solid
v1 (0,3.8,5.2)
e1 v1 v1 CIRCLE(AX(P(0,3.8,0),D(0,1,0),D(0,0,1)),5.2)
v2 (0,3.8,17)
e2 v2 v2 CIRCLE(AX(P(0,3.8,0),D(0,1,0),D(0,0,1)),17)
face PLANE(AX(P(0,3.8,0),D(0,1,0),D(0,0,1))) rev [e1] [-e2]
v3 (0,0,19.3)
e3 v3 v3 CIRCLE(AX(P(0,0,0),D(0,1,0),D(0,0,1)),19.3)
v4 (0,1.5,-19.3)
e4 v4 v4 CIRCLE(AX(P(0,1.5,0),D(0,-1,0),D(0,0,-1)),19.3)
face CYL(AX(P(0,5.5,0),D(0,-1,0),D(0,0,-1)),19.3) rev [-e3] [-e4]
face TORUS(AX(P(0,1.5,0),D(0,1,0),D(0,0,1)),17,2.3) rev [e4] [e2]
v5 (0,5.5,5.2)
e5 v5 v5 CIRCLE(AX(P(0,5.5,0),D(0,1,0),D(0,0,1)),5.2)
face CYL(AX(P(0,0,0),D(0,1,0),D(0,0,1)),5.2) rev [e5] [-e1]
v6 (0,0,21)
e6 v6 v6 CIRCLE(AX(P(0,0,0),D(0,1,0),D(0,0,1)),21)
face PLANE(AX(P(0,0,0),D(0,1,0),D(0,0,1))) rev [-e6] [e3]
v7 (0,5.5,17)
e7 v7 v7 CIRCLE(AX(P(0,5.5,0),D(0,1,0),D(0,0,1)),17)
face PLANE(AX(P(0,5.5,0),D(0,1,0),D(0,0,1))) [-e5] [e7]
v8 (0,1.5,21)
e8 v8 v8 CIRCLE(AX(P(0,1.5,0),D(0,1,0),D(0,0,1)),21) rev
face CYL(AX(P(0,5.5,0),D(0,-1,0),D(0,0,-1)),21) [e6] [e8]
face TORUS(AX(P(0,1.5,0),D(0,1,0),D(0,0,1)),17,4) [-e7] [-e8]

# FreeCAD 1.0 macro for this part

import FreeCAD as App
import Part
import Sketcher
from FreeCAD import Vector
Q = App.Units.Quantity


def edges_at(feature, points):
    """Names of the edges that pass closest to the given points."""
    edges = feature.Shape.Edges
    near = lambda p: min(range(len(edges)), key=lambda i: edges[i].distToShape(Part.Vertex(*p))[0])
    return sorted({f"Edge{near(p) + 1}" for p in points})


def faces_at(feature, points):
    """Names of the faces that lie closest to the given points."""
    faces = feature.Shape.Faces
    near = lambda p: min(range(len(faces)), key=lambda i: faces[i].distToShape(Part.Vertex(*p))[0])
    return sorted({f"Face{near(p) + 1}" for p in points})

doc = App.newDocument("Part")
body = doc.addObject("PartDesign::Body", "Body")

sketch1 = doc.addObject("Sketcher::SketchObject", "Sketch")
body.addObject(sketch1)
sketch1.AttachmentSupport = (doc.XZ_Plane, [""])
sketch1.MapMode = "FlatFace"
sketch1.addGeometry(Part.Circle(Vector(0, 0, 0), Vector(0, 0, 1), 21), False)
sketch1.addConstraint([
    Sketcher.Constraint("Coincident", 0, 3, -1, 1),
    Sketcher.Constraint("Diameter", 0, Q("42 mm")),
])
pad1 = doc.addObject("PartDesign::Pad", "Pad")
body.addObject(pad1)
pad1.Profile = sketch1
pad1.Length = 5.5
pad1.Reversed = True
doc.recompute()

fillet = doc.addObject("PartDesign::Fillet", "Fillet")
body.addObject(fillet)
fillet.Base = (pad1, edges_at(pad1, [(0, 5.5, -21)]))
fillet.Radius = 4
doc.recompute()

thickness = doc.addObject("PartDesign::Thickness", "Thickness")
body.addObject(thickness)
thickness.Base = (fillet, faces_at(fillet, [(0, 0, 0)]))
thickness.Value = 1.7
thickness.Reversed = True
thickness.Join = "Intersection"

sketch2 = doc.addObject("Sketcher::SketchObject", "Sketch001")
body.addObject(sketch2)
sketch2.AttachmentSupport = (doc.XZ_Plane, [""])
sketch2.MapMode = "FlatFace"
sketch2.AttachmentOffset = App.Placement(Vector(0, 0, -5.5), App.Rotation())
sketch2.addGeometry(Part.Circle(Vector(0, 0, 0), Vector(0, 0, 1), 5), False)
sketch2.addConstraint([
    Sketcher.Constraint("Coincident", 0, 3, -1, 1),
    Sketcher.Constraint("Diameter", 0, Q("10.4 mm")),
])
pocket1 = doc.addObject("PartDesign::Pocket", "Pocket")
body.addObject(pocket1)
pocket1.Profile = sketch2
pocket1.Type = "ThroughAll"
pocket1.Reversed = True

doc.recompute()
